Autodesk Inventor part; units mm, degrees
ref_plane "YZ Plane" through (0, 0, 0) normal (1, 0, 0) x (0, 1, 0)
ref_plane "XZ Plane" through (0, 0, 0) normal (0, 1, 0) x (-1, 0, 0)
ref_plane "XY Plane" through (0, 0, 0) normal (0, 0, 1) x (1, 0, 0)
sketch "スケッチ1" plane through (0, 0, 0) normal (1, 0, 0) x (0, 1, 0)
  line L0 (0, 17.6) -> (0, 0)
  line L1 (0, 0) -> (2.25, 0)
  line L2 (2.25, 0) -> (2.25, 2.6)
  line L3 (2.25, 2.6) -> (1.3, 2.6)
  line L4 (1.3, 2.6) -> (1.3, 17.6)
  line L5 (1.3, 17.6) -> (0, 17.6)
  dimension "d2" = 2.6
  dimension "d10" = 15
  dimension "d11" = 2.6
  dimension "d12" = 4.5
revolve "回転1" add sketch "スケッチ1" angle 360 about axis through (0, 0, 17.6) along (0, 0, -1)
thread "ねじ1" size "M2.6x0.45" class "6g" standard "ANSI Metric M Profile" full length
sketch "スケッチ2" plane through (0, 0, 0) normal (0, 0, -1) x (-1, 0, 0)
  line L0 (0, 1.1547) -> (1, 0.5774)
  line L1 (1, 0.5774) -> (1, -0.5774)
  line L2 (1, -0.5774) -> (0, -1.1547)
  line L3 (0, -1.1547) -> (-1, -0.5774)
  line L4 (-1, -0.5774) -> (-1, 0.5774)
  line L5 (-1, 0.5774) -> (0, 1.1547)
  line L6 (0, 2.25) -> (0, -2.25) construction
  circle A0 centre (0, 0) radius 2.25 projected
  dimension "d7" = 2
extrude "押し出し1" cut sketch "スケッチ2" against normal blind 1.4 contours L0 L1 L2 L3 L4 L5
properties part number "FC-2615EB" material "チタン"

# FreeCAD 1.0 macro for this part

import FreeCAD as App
import Part
import Sketcher

V = App.Vector


def add_polygon(sketch, points):
    """Adds a closed chain of lines whose ends are joined by coincident constraints."""
    first, n = sketch.GeometryCount, len(points)
    for a, b in zip(points, points[1:] + points[:1]):
        sketch.addGeometry(Part.LineSegment(App.Vector(*a, 0), App.Vector(*b, 0)), False)
    for i in range(n):
        sketch.addConstraint(Sketcher.Constraint("Coincident", first + i, 2, first + (i + 1) % n, 1))

doc = App.newDocument("Part")
body = doc.addObject("PartDesign::Body", "Body")

sketch1 = body.newObject("Sketcher::SketchObject", "Sketch")
sketch1.AttachmentSupport = (doc.getObject("YZ_Plane"), [""])
sketch1.MapMode = "FlatFace"
add_polygon(sketch1, [(1.3, 17.6), (0, 17.6), (0, 0), (2.25, 0), (2.25, 2.6), (1.3, 2.6)])
sketch1.addConstraint([
    Sketcher.Constraint("Horizontal", 0),
    Sketcher.Constraint("Vertical", 1),
    Sketcher.Constraint("Horizontal", 2),
    Sketcher.Constraint("Vertical", 3),
    Sketcher.Constraint("Horizontal", 4),
    Sketcher.Constraint("Vertical", 5),
    Sketcher.Constraint("Coincident", 1, 2, -1, 1),
    Sketcher.Constraint("DistanceY", 5, 1, 5, 2, 15.0),
    Sketcher.Constraint("DistanceY", 3, 1, 3, 2, 2.6),
    Sketcher.Constraint("DistanceX", 0, 2, 0, 1, 1.3),
    Sketcher.Constraint("DistanceX", 2, 1, 2, 2, 2.25),
])
revolution = body.newObject("PartDesign::Revolution", "Revolution")
revolution.Profile = sketch1
revolution.ReferenceAxis = (sketch1, ["V_Axis"])
revolution.Angle = 360

sketch2 = body.newObject("Sketcher::SketchObject", "Sketch001")
sketch2.AttachmentSupport = (doc.getObject("XY_Plane"), [""])
sketch2.MapMode = "FlatFace"
add_polygon(sketch2, [(-1, 0.5774), (0, 1.1547), (1, 0.5774), (1, -0.5774), (0, -1.1547), (-1, -0.5774)])
sketch2.addConstraint([
    Sketcher.Constraint("Vertical", 2),
    Sketcher.Constraint("Vertical", 5),
    Sketcher.Constraint("Symmetric", 0, 2, 3, 2, -1, 1),
    Sketcher.Constraint("Symmetric", 1, 2, 4, 2, -1, 1),
    Sketcher.Constraint("PointOnObject", 0, 2, -2),
    Sketcher.Constraint("Parallel", 0, 3),
    Sketcher.Constraint("Horizontal", 2, 2, 4, 2),
    Sketcher.Constraint("DistanceX", 4, 2, 2, 2, 2.0),
    Sketcher.Constraint("DistanceY", 2, 2, 2, 1, 1.1548),
    Sketcher.Constraint("DistanceY", 2, 2, 0, 2, 1.732),
])
pocket1 = body.newObject("PartDesign::Pocket", "Pocket")
pocket1.Profile = sketch2
pocket1.Length = 1.4
pocket1.Reversed = True

doc.recompute()
